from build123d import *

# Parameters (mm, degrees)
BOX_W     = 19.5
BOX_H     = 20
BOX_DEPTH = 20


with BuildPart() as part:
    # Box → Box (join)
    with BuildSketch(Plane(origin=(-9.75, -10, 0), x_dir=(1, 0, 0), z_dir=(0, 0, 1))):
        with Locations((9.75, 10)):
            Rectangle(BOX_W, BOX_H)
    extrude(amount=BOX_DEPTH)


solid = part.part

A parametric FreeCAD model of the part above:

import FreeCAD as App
import Part
import Sketcher
from FreeCAD import Vector
Q = App.Units.Quantity


def add_polygon(sketch, points):
    """Adds a closed chain of lines whose ends are joined by coincident constraints."""
    first, n = sketch.GeometryCount, len(points)
    for a, b in zip(points, points[1:] + points[:1]):
        sketch.addGeometry(Part.LineSegment(App.Vector(*a, 0), App.Vector(*b, 0)), False)
    for i in range(n):
        sketch.addConstraint(Sketcher.Constraint("Coincident", first + i, 2, first + (i + 1) % n, 1))

doc = App.newDocument("Part")
body = doc.addObject("PartDesign::Body", "Body")

# Sketch on XY plane
sketch1 = body.newObject("Sketcher::SketchObject", "Sketch")
sketch1.AttachmentSupport = (doc.getObject("XY_Plane"), [""])
sketch1.MapMode = "FlatFace"
add_polygon(sketch1, [(-10, 10), (-10, -10), (10, -10), (10, 10)])  # lines 0-3
sketch1.addConstraint(Sketcher.Constraint("Vertical", 0))
sketch1.addConstraint(Sketcher.Constraint("Horizontal", 1))
sketch1.addConstraint(Sketcher.Constraint("Vertical", 2))
sketch1.addConstraint(Sketcher.Constraint("Horizontal", 3))
sketch1.addConstraint(Sketcher.Constraint("Symmetric", 0, 2, 2, 2, -1, 1))
sketch1.addConstraint(Sketcher.Constraint("DistanceY", 0, 2, 0, 1, Q("20 mm")))
sketch1.addConstraint(Sketcher.Constraint("DistanceX", 1, 1, 1, 2, Q("19.5 mm")))
pad1 = body.newObject("PartDesign::Pad", "Pad")
pad1.Profile = sketch1
pad1.Length = 20

doc.recompute()
